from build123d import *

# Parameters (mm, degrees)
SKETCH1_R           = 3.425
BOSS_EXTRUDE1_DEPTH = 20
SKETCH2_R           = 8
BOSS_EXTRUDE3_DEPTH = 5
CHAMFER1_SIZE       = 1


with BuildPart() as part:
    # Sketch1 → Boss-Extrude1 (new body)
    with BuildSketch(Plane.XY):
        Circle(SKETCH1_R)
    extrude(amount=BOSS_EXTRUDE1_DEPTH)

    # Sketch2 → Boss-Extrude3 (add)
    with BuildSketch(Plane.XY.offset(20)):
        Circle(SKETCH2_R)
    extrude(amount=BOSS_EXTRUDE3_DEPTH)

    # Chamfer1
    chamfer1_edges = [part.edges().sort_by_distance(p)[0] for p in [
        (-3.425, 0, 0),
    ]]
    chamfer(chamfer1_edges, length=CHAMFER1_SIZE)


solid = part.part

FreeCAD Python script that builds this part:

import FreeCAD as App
import Part
import Sketcher

V = App.Vector
Q = App.Units.Quantity


def edges_at(feature, points):
    """Names of the edges that pass closest to the given points."""
    edges = feature.Shape.Edges
    near = lambda p: min(range(len(edges)), key=lambda i: edges[i].distToShape(Part.Vertex(*p))[0])
    return sorted({f"Edge{near(p) + 1}" for p in points})

doc = App.newDocument("Part")
body = doc.addObject("PartDesign::Body", "Body")

# Sketch on XY plane
sketch1 = doc.addObject("Sketcher::SketchObject", "Sketch")
body.addObject(sketch1)
sketch1.AttachmentSupport = (doc.XY_Plane, [""])
sketch1.MapMode = "FlatFace"
sketch1.addGeometry(Part.Circle(V(0, 0, 0), V(0, 0, 1), 3.425), False)
sketch1.addConstraint([
    Sketcher.Constraint("Coincident", 0, 3, -1, 1),
    Sketcher.Constraint("Diameter", 0, Q("6.85 mm")),
])
pad1 = doc.addObject("PartDesign::Pad", "Pad")
body.addObject(pad1)
pad1.Profile = sketch1
pad1.Length = 20

# Sketch on XY plane
sketch2 = doc.addObject("Sketcher::SketchObject", "Sketch001")
body.addObject(sketch2)
sketch2.AttachmentSupport = (doc.XY_Plane, [""])
sketch2.MapMode = "FlatFace"
sketch2.AttachmentOffset = App.Placement(V(0, 0, 20), App.Rotation())
sketch2.addGeometry(Part.Circle(V(0, 0, 0), V(0, 0, 1), 8), False)
sketch2.addConstraint([
    Sketcher.Constraint("Coincident", 0, 3, -1, 1),
    Sketcher.Constraint("Diameter", 0, Q("16 mm")),
])
pad2 = doc.addObject("PartDesign::Pad", "Pad001")
body.addObject(pad2)
pad2.Profile = sketch2
pad2.Length = 5
doc.recompute()

chamfer = doc.addObject("PartDesign::Chamfer", "Chamfer")
body.addObject(chamfer)
chamfer.Base = (pad2, edges_at(pad2, [(-3.425, 0, 0)]))
chamfer.Size = 1

doc.recompute()
